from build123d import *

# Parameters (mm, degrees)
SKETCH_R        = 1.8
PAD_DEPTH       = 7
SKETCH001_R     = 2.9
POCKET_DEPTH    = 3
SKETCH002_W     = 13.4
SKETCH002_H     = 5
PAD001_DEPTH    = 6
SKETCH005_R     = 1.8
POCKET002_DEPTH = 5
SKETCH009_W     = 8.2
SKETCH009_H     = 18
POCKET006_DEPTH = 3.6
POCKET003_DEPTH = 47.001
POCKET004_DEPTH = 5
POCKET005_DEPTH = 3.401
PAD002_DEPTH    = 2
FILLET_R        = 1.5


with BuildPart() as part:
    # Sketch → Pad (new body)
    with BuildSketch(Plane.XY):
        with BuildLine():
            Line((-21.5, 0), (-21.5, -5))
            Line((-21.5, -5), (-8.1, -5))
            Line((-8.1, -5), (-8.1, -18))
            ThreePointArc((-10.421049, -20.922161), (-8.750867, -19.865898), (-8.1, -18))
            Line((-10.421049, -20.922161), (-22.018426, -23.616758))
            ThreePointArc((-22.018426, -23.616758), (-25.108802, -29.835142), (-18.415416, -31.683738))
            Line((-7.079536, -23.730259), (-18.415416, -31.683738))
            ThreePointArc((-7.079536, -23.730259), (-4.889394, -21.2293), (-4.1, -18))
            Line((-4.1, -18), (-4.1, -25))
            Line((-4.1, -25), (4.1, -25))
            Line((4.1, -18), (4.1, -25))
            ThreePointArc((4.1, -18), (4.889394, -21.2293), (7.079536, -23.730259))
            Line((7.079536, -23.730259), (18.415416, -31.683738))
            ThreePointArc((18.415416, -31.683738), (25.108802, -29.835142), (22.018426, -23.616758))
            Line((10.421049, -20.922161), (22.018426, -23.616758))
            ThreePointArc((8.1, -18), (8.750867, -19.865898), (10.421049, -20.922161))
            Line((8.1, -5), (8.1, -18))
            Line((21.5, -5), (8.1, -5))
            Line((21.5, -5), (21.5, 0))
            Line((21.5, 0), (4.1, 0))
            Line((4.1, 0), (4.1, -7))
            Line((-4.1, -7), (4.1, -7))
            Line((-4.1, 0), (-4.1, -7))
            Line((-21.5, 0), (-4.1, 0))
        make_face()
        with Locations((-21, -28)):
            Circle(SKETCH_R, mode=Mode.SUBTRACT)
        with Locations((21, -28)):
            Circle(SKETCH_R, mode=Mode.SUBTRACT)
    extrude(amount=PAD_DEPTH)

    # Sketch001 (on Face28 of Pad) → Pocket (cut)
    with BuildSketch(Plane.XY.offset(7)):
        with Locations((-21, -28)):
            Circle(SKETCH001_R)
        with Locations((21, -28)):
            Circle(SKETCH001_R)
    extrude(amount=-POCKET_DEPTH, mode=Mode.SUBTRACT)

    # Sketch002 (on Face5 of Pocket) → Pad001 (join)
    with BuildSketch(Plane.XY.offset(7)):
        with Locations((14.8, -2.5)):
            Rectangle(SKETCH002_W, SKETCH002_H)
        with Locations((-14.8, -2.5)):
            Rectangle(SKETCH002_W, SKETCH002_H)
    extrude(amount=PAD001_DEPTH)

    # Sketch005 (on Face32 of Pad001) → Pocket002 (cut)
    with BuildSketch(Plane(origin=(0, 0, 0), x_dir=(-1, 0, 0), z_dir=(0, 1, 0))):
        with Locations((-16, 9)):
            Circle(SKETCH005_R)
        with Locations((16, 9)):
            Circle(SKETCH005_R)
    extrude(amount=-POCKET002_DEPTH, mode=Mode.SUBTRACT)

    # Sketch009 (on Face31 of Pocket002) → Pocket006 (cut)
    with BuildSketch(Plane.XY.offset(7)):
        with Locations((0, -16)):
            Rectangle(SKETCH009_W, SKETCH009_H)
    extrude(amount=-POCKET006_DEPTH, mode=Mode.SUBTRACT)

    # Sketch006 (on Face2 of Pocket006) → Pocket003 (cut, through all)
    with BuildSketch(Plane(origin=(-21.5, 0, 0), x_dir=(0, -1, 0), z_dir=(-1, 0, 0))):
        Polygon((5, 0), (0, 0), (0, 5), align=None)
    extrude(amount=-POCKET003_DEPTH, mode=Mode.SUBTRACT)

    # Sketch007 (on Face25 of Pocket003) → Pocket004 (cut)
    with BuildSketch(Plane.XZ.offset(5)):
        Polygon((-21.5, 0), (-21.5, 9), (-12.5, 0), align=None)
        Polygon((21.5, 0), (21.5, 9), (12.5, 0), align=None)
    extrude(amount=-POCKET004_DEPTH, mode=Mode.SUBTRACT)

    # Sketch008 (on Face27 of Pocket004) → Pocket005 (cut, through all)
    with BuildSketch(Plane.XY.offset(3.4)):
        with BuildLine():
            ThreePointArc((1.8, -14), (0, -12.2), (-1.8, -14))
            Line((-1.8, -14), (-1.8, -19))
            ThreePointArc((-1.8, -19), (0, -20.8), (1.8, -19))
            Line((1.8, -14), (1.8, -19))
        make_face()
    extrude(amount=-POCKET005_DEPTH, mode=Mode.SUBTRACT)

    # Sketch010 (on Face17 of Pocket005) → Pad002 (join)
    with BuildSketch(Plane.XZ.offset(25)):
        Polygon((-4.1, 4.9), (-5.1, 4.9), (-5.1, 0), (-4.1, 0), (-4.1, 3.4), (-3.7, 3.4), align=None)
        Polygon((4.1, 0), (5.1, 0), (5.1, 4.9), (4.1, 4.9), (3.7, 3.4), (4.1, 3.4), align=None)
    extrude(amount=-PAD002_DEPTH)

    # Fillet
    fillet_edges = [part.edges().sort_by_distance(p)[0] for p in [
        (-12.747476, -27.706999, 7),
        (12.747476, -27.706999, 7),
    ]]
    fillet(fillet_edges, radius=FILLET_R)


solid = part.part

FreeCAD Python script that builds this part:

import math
import FreeCAD as App
import Part
import Sketcher

V = App.Vector


def edges_at(feature, points):
    """Names of the edges that pass closest to the given points."""
    edges = feature.Shape.Edges
    near = lambda p: min(range(len(edges)), key=lambda i: edges[i].distToShape(Part.Vertex(*p))[0])
    return sorted({f"Edge{near(p) + 1}" for p in points})

doc = App.newDocument("Part")
body = doc.addObject("PartDesign::Body", "Body")

# Sketch on XY plane
sketch1 = body.newObject("Sketcher::SketchObject", "Sketch")
sketch1.AttachmentSupport = (doc.getObject("XY_Plane"), [""])
sketch1.MapMode = "FlatFace"
sketch1.addGeometry(Part.LineSegment(V(-21.5, 0, 0), V(-21.5, -5, 0)), False)
sketch1.addGeometry(Part.LineSegment(V(-21.5, -5, 0), V(-8.1, -5, 0)), False)
sketch1.addGeometry(Part.LineSegment(V(-8.1, -5, 0), V(-8.1, -18, 0)), False)
sketch1.addGeometry(Part.ArcOfCircle(Part.Circle(V(-11.1, -18, 0), V(0, 0, 1), 3), math.radians(-77), math.radians(0)), False)
sketch1.addGeometry(Part.LineSegment(V(-10.4, -20.9, 0), V(-22, -23.6, 0)), False)
sketch1.addGeometry(Part.ArcOfCircle(Part.Circle(V(-21, -28, 0), V(0, 0, 1), 4.5), math.radians(103), math.radians(305)), False)
sketch1.addGeometry(Part.LineSegment(V(-18.4, -31.7, 0), V(-7.1, -23.7, 0)), False)
sketch1.addGeometry(Part.ArcOfCircle(Part.Circle(V(-11.1, -18, 0), V(0, 0, 1), 7), math.radians(-55), math.radians(0)), False)
sketch1.addGeometry(Part.LineSegment(V(-4.1, -18, 0), V(-4.1, -25, 0)), False)
sketch1.addGeometry(Part.LineSegment(V(-4.1, -25, 0), V(4.1, -25, 0)), False)
sketch1.addGeometry(Part.LineSegment(V(4.1, -25, 0), V(4.1, -18, 0)), False)
sketch1.addGeometry(Part.ArcOfCircle(Part.Circle(V(11.1, -18, 0), V(0, 0, 1), 7), math.radians(180), math.radians(235)), False)
sketch1.addGeometry(Part.LineSegment(V(7.1, -23.7, 0), V(18.4, -31.7, 0)), False)
sketch1.addGeometry(Part.ArcOfCircle(Part.Circle(V(21, -28, 0), V(0, 0, 1), 4.5), math.radians(-125), math.radians(77)), False)
sketch1.addGeometry(Part.LineSegment(V(22, -23.6, 0), V(10.4, -20.9, 0)), False)
sketch1.addGeometry(Part.ArcOfCircle(Part.Circle(V(11.1, -18, 0), V(0, 0, 1), 3), math.radians(180), math.radians(257)), False)
sketch1.addGeometry(Part.LineSegment(V(8.1, -18, 0), V(8.1, -5, 0)), False)
sketch1.addGeometry(Part.LineSegment(V(8.1, -5, 0), V(21.5, -5, 0)), False)
sketch1.addGeometry(Part.LineSegment(V(21.5, -5, 0), V(21.5, 0, 0)), False)
sketch1.addGeometry(Part.LineSegment(V(21.5, 0, 0), V(4.1, 0, 0)), False)
sketch1.addGeometry(Part.LineSegment(V(4.1, 0, 0), V(4.1, -7, 0)), False)
sketch1.addGeometry(Part.LineSegment(V(4.1, -7, 0), V(-4.1, -7, 0)), False)
sketch1.addGeometry(Part.LineSegment(V(-4.1, -7, 0), V(-4.1, 0, 0)), False)
sketch1.addGeometry(Part.LineSegment(V(-4.1, 0, 0), V(-21.5, 0, 0)), False)
sketch1.addGeometry(Part.Circle(V(-21, -28, 0), V(0, 0, 1), 1.8), False)
sketch1.addGeometry(Part.Circle(V(21, -28, 0), V(0, 0, 1), 1.8), False)
sketch1.addConstraint(Sketcher.Constraint("Coincident", 0, 2, 1, 1))
sketch1.addConstraint(Sketcher.Constraint("Coincident", 1, 2, 2, 1))
sketch1.addConstraint(Sketcher.Constraint("Tangent", 2, 2, 3, 2))
sketch1.addConstraint(Sketcher.Constraint("Tangent", 3, 1, 4, 1))
sketch1.addConstraint(Sketcher.Constraint("Tangent", 4, 2, 5, 1))
sketch1.addConstraint(Sketcher.Constraint("Tangent", 5, 2, 6, 1))
sketch1.addConstraint(Sketcher.Constraint("Tangent", 6, 2, 7, 1))
sketch1.addConstraint(Sketcher.Constraint("Tangent", 7, 2, 8, 1))
sketch1.addConstraint(Sketcher.Constraint("Coincident", 8, 2, 9, 1))
sketch1.addConstraint(Sketcher.Constraint("Coincident", 9, 2, 10, 1))
sketch1.addConstraint(Sketcher.Constraint("Tangent", 10, 2, 11, 1))
sketch1.addConstraint(Sketcher.Constraint("Tangent", 11, 2, 12, 1))
sketch1.addConstraint(Sketcher.Constraint("Tangent", 12, 2, 13, 1))
sketch1.addConstraint(Sketcher.Constraint("Tangent", 13, 2, 14, 1))
sketch1.addConstraint(Sketcher.Constraint("Tangent", 14, 2, 15, 2))
sketch1.addConstraint(Sketcher.Constraint("Tangent", 15, 1, 16, 1))
sketch1.addConstraint(Sketcher.Constraint("Coincident", 16, 2, 17, 1))
sketch1.addConstraint(Sketcher.Constraint("Coincident", 17, 2, 18, 1))
sketch1.addConstraint(Sketcher.Constraint("Coincident", 18, 2, 19, 1))
sketch1.addConstraint(Sketcher.Constraint("Coincident", 19, 2, 20, 1))
sketch1.addConstraint(Sketcher.Constraint("Coincident", 20, 2, 21, 1))
sketch1.addConstraint(Sketcher.Constraint("Coincident", 21, 2, 22, 1))
sketch1.addConstraint(Sketcher.Constraint("Coincident", 22, 2, 23, 1))
sketch1.addConstraint(Sketcher.Constraint("Coincident", 23, 2, 0, 1))
sketch1.addConstraint(Sketcher.Constraint("Vertical", 0))
sketch1.addConstraint(Sketcher.Constraint("Horizontal", 1))
sketch1.addConstraint(Sketcher.Constraint("Vertical", 2))
sketch1.addConstraint(Sketcher.Constraint("Vertical", 8))
sketch1.addConstraint(Sketcher.Constraint("Horizontal", 9))
sketch1.addConstraint(Sketcher.Constraint("Vertical", 10))
sketch1.addConstraint(Sketcher.Constraint("Vertical", 16))
sketch1.addConstraint(Sketcher.Constraint("Horizontal", 17))
sketch1.addConstraint(Sketcher.Constraint("Vertical", 18))
sketch1.addConstraint(Sketcher.Constraint("Horizontal", 19))
sketch1.addConstraint(Sketcher.Constraint("Vertical", 20))
sketch1.addConstraint(Sketcher.Constraint("Horizontal", 21))
sketch1.addConstraint(Sketcher.Constraint("Vertical", 22))
sketch1.addConstraint(Sketcher.Constraint("Horizontal", 23))
sketch1.addConstraint(Sketcher.Constraint("Coincident", 7, 3, 3, 3))
sketch1.addConstraint(Sketcher.Constraint("Coincident", 15, 3, 11, 3))
sketch1.addConstraint(Sketcher.Constraint("Coincident", 24, 3, 5, 3))
sketch1.addConstraint(Sketcher.Constraint("Coincident", 25, 3, 13, 3))
sketch1.addConstraint(Sketcher.Constraint("Equal", 7, 11))
sketch1.addConstraint(Sketcher.Constraint("Equal", 5, 13))
sketch1.addConstraint(Sketcher.Constraint("Equal", 3, 15))
sketch1.addConstraint(Sketcher.Constraint("Equal", 24, 25))
sketch1.addConstraint(Sketcher.Constraint("Symmetric", 19, 2, 22, 2, -1, 1))
sketch1.addConstraint(Sketcher.Constraint("Symmetric", 3, 3, 11, 3, -2))
sketch1.addConstraint(Sketcher.Constraint("Symmetric", 5, 3, 13, 3, -2))
sketch1.addConstraint(Sketcher.Constraint("Symmetric", 0, 2, 17, 2, -2))
sketch1.addConstraint(Sketcher.Constraint("PointOnObject", 18, 2, -1))
sketch1.addConstraint(Sketcher.Constraint("Vertical", 10, 2, 19, 2))
sketch1.addConstraint(Sketcher.Constraint("Equal", 10, 20))
sketch1.addConstraint(Sketcher.Constraint("Radius", 3, 2.999999))
sketch1.addConstraint(Sketcher.Constraint("Diameter", 24, 3.6))
sketch1.addConstraint(Sketcher.Constraint("Radius", 5, 4.5))
sketch1.addConstraint(Sketcher.Constraint("DistanceY", 0, 2, 0, 1, 5.0))
sketch1.addConstraint(Sketcher.Constraint("DistanceY", 2, 2, 2, 1, 13.0))
sketch1.addConstraint(Sketcher.Constraint("DistanceY", 8, 2, 8, 1, 7.0))
sketch1.addConstraint(Sketcher.Constraint("DistanceX", 1, 1, 1, 2, 13.4))
sketch1.addConstraint(Sketcher.Constraint("DistanceX", 9, 1, 9, 2, 8.2))
sketch1.addConstraint(Sketcher.Constraint("DistanceX", 19, 2, 19, 1, 17.4))
sketch1.addConstraint(Sketcher.Constraint("DistanceX", 5, 3, -1, 1, 21.0))
sketch1.addConstraint(Sketcher.Constraint("DistanceY", 5, 3, -1, 1, 28.0))
pad1 = body.newObject("PartDesign::Pad", "Pad")
pad1.Profile = sketch1
pad1.Length = 7

# Sketch on XY plane
sketch2 = body.newObject("Sketcher::SketchObject", "Sketch001")
sketch2.AttachmentSupport = (doc.getObject("XY_Plane"), [""])
sketch2.MapMode = "FlatFace"
sketch2.AttachmentOffset = App.Placement(V(0, 0, 7), App.Rotation())
sketch2.addGeometry(Part.Circle(V(-21, -28, 0), V(0, 0, 1), 2.9), False)
sketch2.addGeometry(Part.Circle(V(21, -28, 0), V(0, 0, 1), 2.9), False)
sketch2.addConstraint(Sketcher.Constraint("Equal", 0, 1))
sketch2.addConstraint(Sketcher.Constraint("Symmetric", 0, 3, 1, 3, -2))
sketch2.addConstraint(Sketcher.Constraint("Diameter", 0, 5.8))
sketch2.addConstraint(Sketcher.Constraint("DistanceX", 0, 3, -1, 1, 21.0))
sketch2.addConstraint(Sketcher.Constraint("DistanceY", 0, 3, -1, 1, 28.0))
pocket1 = body.newObject("PartDesign::Pocket", "Pocket")
pocket1.Profile = sketch2
pocket1.Length = 3

# Sketch on XY plane
sketch3 = body.newObject("Sketcher::SketchObject", "Sketch002")
sketch3.AttachmentSupport = (doc.getObject("XY_Plane"), [""])
sketch3.MapMode = "FlatFace"
sketch3.AttachmentOffset = App.Placement(V(0, 0, 7), App.Rotation())
sketch3.addGeometry(Part.LineSegment(V(8, 0, 0), V(8, -5, 0)), False)
sketch3.addGeometry(Part.LineSegment(V(8, -5, 0), V(22, -5, 0)), False)
sketch3.addGeometry(Part.LineSegment(V(22, -5, 0), V(22, 0, 0)), False)
sketch3.addGeometry(Part.LineSegment(V(22, 0, 0), V(8, 0, 0)), False)
sketch3.addGeometry(Part.LineSegment(V(-22, 0, 0), V(-22, -5, 0)), False)
sketch3.addGeometry(Part.LineSegment(V(-22, -5, 0), V(-8, -5, 0)), False)
sketch3.addGeometry(Part.LineSegment(V(-8, -5, 0), V(-8, 0, 0)), False)
sketch3.addGeometry(Part.LineSegment(V(-8, 0, 0), V(-22, 0, 0)), False)
sketch3.addConstraint(Sketcher.Constraint("Coincident", 0, 2, 1, 1))
sketch3.addConstraint(Sketcher.Constraint("Coincident", 1, 2, 2, 1))
sketch3.addConstraint(Sketcher.Constraint("Coincident", 2, 2, 3, 1))
sketch3.addConstraint(Sketcher.Constraint("Coincident", 3, 2, 0, 1))
sketch3.addConstraint(Sketcher.Constraint("Coincident", 4, 2, 5, 1))
sketch3.addConstraint(Sketcher.Constraint("Coincident", 5, 2, 6, 1))
sketch3.addConstraint(Sketcher.Constraint("Coincident", 6, 2, 7, 1))
sketch3.addConstraint(Sketcher.Constraint("Coincident", 7, 2, 4, 1))
sketch3.addConstraint(Sketcher.Constraint("Vertical", 0))
sketch3.addConstraint(Sketcher.Constraint("Horizontal", 1))
sketch3.addConstraint(Sketcher.Constraint("Vertical", 2))
sketch3.addConstraint(Sketcher.Constraint("Horizontal", 3))
sketch3.addConstraint(Sketcher.Constraint("Vertical", 4))
sketch3.addConstraint(Sketcher.Constraint("Horizontal", 5))
sketch3.addConstraint(Sketcher.Constraint("Vertical", 6))
sketch3.addConstraint(Sketcher.Constraint("Horizontal", 7))
sketch3.addConstraint(Sketcher.Constraint("Symmetric", 3, 2, 6, 2, -1, 1))
sketch3.addConstraint(Sketcher.Constraint("Symmetric", 1, 2, 4, 2, -2))
sketch3.addConstraint(Sketcher.Constraint("PointOnObject", 2, 2, -1))
sketch3.addConstraint(Sketcher.Constraint("DistanceY", 0, 2, 0, 1, 5.0))
sketch3.addConstraint(Sketcher.Constraint("DistanceX", 1, 1, 1, 2, 13.4))
sketch3.addConstraint(Sketcher.Constraint("DistanceX", 4, 2, 1, 2, 43.0))
pad2 = body.newObject("PartDesign::Pad", "Pad001")
pad2.Profile = sketch3
pad2.Length = 6

# Sketch on XZ plane
sketch4 = body.newObject("Sketcher::SketchObject", "Sketch003")
sketch4.AttachmentSupport = (doc.getObject("XZ_Plane"), [""])
sketch4.MapMode = "FlatFace"
sketch4.addGeometry(Part.Circle(V(16, 9, 0), V(0, 0, 1), 1.8), False)
sketch4.addGeometry(Part.Circle(V(-16, 9, 0), V(0, 0, 1), 1.8), False)
sketch4.addConstraint(Sketcher.Constraint("Equal", 0, 1))
sketch4.addConstraint(Sketcher.Constraint("Symmetric", 0, 3, 1, 3, -2))
sketch4.addConstraint(Sketcher.Constraint("Diameter", 0, 3.6))
sketch4.addConstraint(Sketcher.Constraint("DistanceX", -1, 1, 0, 3, 16.0))
sketch4.addConstraint(Sketcher.Constraint("DistanceY", -1, 1, 0, 3, 9.0))
pocket2 = body.newObject("PartDesign::Pocket", "Pocket001")
pocket2.Profile = sketch4
pocket2.Length = 5
pocket2.Reversed = True

# Sketch on XY plane
sketch5 = body.newObject("Sketcher::SketchObject", "Sketch004")
sketch5.AttachmentSupport = (doc.getObject("XY_Plane"), [""])
sketch5.MapMode = "FlatFace"
sketch5.AttachmentOffset = App.Placement(V(0, 0, 7), App.Rotation())
sketch5.addGeometry(Part.LineSegment(V(-4, -7, 0), V(-4, -25, 0)), False)
sketch5.addGeometry(Part.LineSegment(V(-4, -25, 0), V(4, -25, 0)), False)
sketch5.addGeometry(Part.LineSegment(V(4, -25, 0), V(4, -7, 0)), False)
sketch5.addGeometry(Part.LineSegment(V(4, -7, 0), V(-4, -7, 0)), False)
sketch5.addConstraint(Sketcher.Constraint("Coincident", 0, 2, 1, 1))
sketch5.addConstraint(Sketcher.Constraint("Coincident", 1, 2, 2, 1))
sketch5.addConstraint(Sketcher.Constraint("Coincident", 2, 2, 3, 1))
sketch5.addConstraint(Sketcher.Constraint("Coincident", 3, 2, 0, 1))
sketch5.addConstraint(Sketcher.Constraint("Vertical", 0))
sketch5.addConstraint(Sketcher.Constraint("Horizontal", 1))
sketch5.addConstraint(Sketcher.Constraint("Vertical", 2))
sketch5.addConstraint(Sketcher.Constraint("Horizontal", 3))
sketch5.addConstraint(Sketcher.Constraint("DistanceY", 0, 2, 0, 1, 18.0))
sketch5.addConstraint(Sketcher.Constraint("DistanceX", 1, 1, 1, 2, 8.2))
sketch5.addConstraint(Sketcher.Constraint("DistanceY", 0, 2, -1, 1, 25.0))
sketch5.addConstraint(Sketcher.Constraint("DistanceX", 0, 2, -1, 1, 4.1))
pocket3 = body.newObject("PartDesign::Pocket", "Pocket002")
pocket3.Profile = sketch5
pocket3.Length = 3.6

# Sketch on YZ plane
sketch6 = body.newObject("Sketcher::SketchObject", "Sketch005")
sketch6.AttachmentSupport = (doc.getObject("YZ_Plane"), [""])
sketch6.MapMode = "FlatFace"
sketch6.AttachmentOffset = App.Placement(V(0, 0, -21.5), App.Rotation())
sketch6.addGeometry(Part.LineSegment(V(0, 0, 0), V(-5, 0, 0)), False)
sketch6.addGeometry(Part.LineSegment(V(-5, 0, 0), V(0, 5, 0)), False)
sketch6.addGeometry(Part.LineSegment(V(0, 5, 0), V(0, 0, 0)), False)
sketch6.addConstraint(Sketcher.Constraint("Coincident", 0, 2, 1, 1))
sketch6.addConstraint(Sketcher.Constraint("Coincident", 1, 2, 2, 1))
sketch6.addConstraint(Sketcher.Constraint("Coincident", 2, 2, 0, 1))
sketch6.addConstraint(Sketcher.Constraint("Horizontal", 0))
sketch6.addConstraint(Sketcher.Constraint("Vertical", 2))
sketch6.addConstraint(Sketcher.Constraint("Coincident", 2, 2, -1, 1))
sketch6.addConstraint(Sketcher.Constraint("Equal", 0, 2))
sketch6.addConstraint(Sketcher.Constraint("DistanceX", 0, 2, 0, 1, 5.0))
pocket4 = body.newObject("PartDesign::Pocket", "Pocket003")
pocket4.Profile = sketch6
pocket4.Type = "ThroughAll"
pocket4.Reversed = True

# Sketch on XZ plane
sketch7 = body.newObject("Sketcher::SketchObject", "Sketch006")
sketch7.AttachmentSupport = (doc.getObject("XZ_Plane"), [""])
sketch7.MapMode = "FlatFace"
sketch7.AttachmentOffset = App.Placement(V(0, 0, 5), App.Rotation())
sketch7.addGeometry(Part.LineSegment(V(-22, 9, 0), V(-22, 0, 0)), False)
sketch7.addGeometry(Part.LineSegment(V(-22, 0, 0), V(-12, 0, 0)), False)
sketch7.addGeometry(Part.LineSegment(V(-12, 0, 0), V(-22, 9, 0)), False)
sketch7.addGeometry(Part.LineSegment(V(22, 0, 0), V(22, 9, 0)), False)
sketch7.addGeometry(Part.LineSegment(V(22, 9, 0), V(12, 0, 0)), False)
sketch7.addGeometry(Part.LineSegment(V(12, 0, 0), V(22, 0, 0)), False)
sketch7.addConstraint(Sketcher.Constraint("Coincident", 0, 2, 1, 1))
sketch7.addConstraint(Sketcher.Constraint("Coincident", 1, 2, 2, 1))
sketch7.addConstraint(Sketcher.Constraint("Coincident", 2, 2, 0, 1))
sketch7.addConstraint(Sketcher.Constraint("Coincident", 3, 2, 4, 1))
sketch7.addConstraint(Sketcher.Constraint("Coincident", 4, 2, 5, 1))
sketch7.addConstraint(Sketcher.Constraint("Coincident", 5, 2, 3, 1))
sketch7.addConstraint(Sketcher.Constraint("Vertical", 0))
sketch7.addConstraint(Sketcher.Constraint("Horizontal", 1))
sketch7.addConstraint(Sketcher.Constraint("Vertical", 3))
sketch7.addConstraint(Sketcher.Constraint("Horizontal", 5))
sketch7.addConstraint(Sketcher.Constraint("Symmetric", 1, 2, 4, 2, -1, 1))
sketch7.addConstraint(Sketcher.Constraint("Symmetric", 2, 2, 3, 2, -2))
sketch7.addConstraint(Sketcher.Constraint("PointOnObject", 0, 2, -1))
sketch7.addConstraint(Sketcher.Constraint("Perpendicular", 2, 4))
sketch7.addConstraint(Sketcher.Constraint("DistanceX", 1, 1, 1, 2, 9.0))
sketch7.addConstraint(Sketcher.Constraint("DistanceX", 1, 2, 3, 2, 34.0))
pocket5 = body.newObject("PartDesign::Pocket", "Pocket004")
pocket5.Profile = sketch7
pocket5.Length = 5

# Sketch on XY plane
sketch8 = body.newObject("Sketcher::SketchObject", "Sketch007")
sketch8.AttachmentSupport = (doc.getObject("XY_Plane"), [""])
sketch8.MapMode = "FlatFace"
sketch8.AttachmentOffset = App.Placement(V(0, 0, 3.4), App.Rotation())
sketch8.addGeometry(Part.ArcOfCircle(Part.Circle(V(0, -14, 0), V(0, 0, 1), 1.8), math.radians(0), math.radians(180)), False)
sketch8.addGeometry(Part.LineSegment(V(-1.8, -14, 0), V(-1.8, -19, 0)), False)
sketch8.addGeometry(Part.ArcOfCircle(Part.Circle(V(0, -19, 0), V(0, 0, 1), 1.8), math.radians(180), math.radians(360)), False)
sketch8.addGeometry(Part.LineSegment(V(1.8, -19, 0), V(1.8, -14, 0)), False)
sketch8.addConstraint(Sketcher.Constraint("Tangent", 0, 2, 1, 1))
sketch8.addConstraint(Sketcher.Constraint("Tangent", 1, 2, 2, 1))
sketch8.addConstraint(Sketcher.Constraint("Tangent", 2, 2, 3, 1))
sketch8.addConstraint(Sketcher.Constraint("Tangent", 3, 2, 0, 1))
sketch8.addConstraint(Sketcher.Constraint("Vertical", 1))
sketch8.addConstraint(Sketcher.Constraint("Vertical", 3))
sketch8.addConstraint(Sketcher.Constraint("PointOnObject", 0, 3, -2))
sketch8.addConstraint(Sketcher.Constraint("Radius", 0, 1.8))
sketch8.addConstraint(Sketcher.Constraint("DistanceY", 1, 2, 1, 1, 5.0))
sketch8.addConstraint(Sketcher.Constraint("DistanceY", 0, 3, -1, 1, 14.0))
pocket6 = body.newObject("PartDesign::Pocket", "Pocket005")
pocket6.Profile = sketch8
pocket6.Type = "ThroughAll"

# Sketch on XZ plane
sketch9 = body.newObject("Sketcher::SketchObject", "Sketch008")
sketch9.AttachmentSupport = (doc.getObject("XZ_Plane"), [""])
sketch9.MapMode = "FlatFace"
sketch9.AttachmentOffset = App.Placement(V(0, 0, 25), App.Rotation())
sketch9.addGeometry(Part.LineSegment(V(-4.1, 4.9, 0), V(-5.1, 4.9, 0)), False)
sketch9.addGeometry(Part.LineSegment(V(-5.1, 4.9, 0), V(-5.1, 0, 0)), False)
sketch9.addGeometry(Part.LineSegment(V(-5.1, 0, 0), V(-4.1, 0, 0)), False)
sketch9.addGeometry(Part.LineSegment(V(-4.1, 0, 0), V(-4.1, 3.4, 0)), False)
sketch9.addGeometry(Part.LineSegment(V(-4.1, 3.4, 0), V(-3.7, 3.4, 0)), False)
sketch9.addGeometry(Part.LineSegment(V(-3.7, 3.4, 0), V(-4.1, 4.9, 0)), False)
sketch9.addGeometry(Part.LineSegment(V(4.1, 0, 0), V(5.1, 0, 0)), False)
sketch9.addGeometry(Part.LineSegment(V(5.1, 0, 0), V(5.1, 4.9, 0)), False)
sketch9.addGeometry(Part.LineSegment(V(5.1, 4.9, 0), V(4.1, 4.9, 0)), False)
sketch9.addGeometry(Part.LineSegment(V(4.1, 4.9, 0), V(3.7, 3.4, 0)), False)
sketch9.addGeometry(Part.LineSegment(V(3.7, 3.4, 0), V(4.1, 3.4, 0)), False)
sketch9.addGeometry(Part.LineSegment(V(4.1, 3.4, 0), V(4.1, 0, 0)), False)
sketch9.addConstraint(Sketcher.Constraint("Coincident", 0, 2, 1, 1))
sketch9.addConstraint(Sketcher.Constraint("Coincident", 1, 2, 2, 1))
sketch9.addConstraint(Sketcher.Constraint("Coincident", 2, 2, 3, 1))
sketch9.addConstraint(Sketcher.Constraint("Coincident", 3, 2, 4, 1))
sketch9.addConstraint(Sketcher.Constraint("Coincident", 4, 2, 5, 1))
sketch9.addConstraint(Sketcher.Constraint("Coincident", 5, 2, 0, 1))
sketch9.addConstraint(Sketcher.Constraint("Coincident", 6, 2, 7, 1))
sketch9.addConstraint(Sketcher.Constraint("Coincident", 7, 2, 8, 1))
sketch9.addConstraint(Sketcher.Constraint("Coincident", 8, 2, 9, 1))
sketch9.addConstraint(Sketcher.Constraint("Coincident", 9, 2, 10, 1))
sketch9.addConstraint(Sketcher.Constraint("Coincident", 10, 2, 11, 1))
sketch9.addConstraint(Sketcher.Constraint("Coincident", 11, 2, 6, 1))
sketch9.addConstraint(Sketcher.Constraint("Horizontal", 0))
sketch9.addConstraint(Sketcher.Constraint("Vertical", 1))
sketch9.addConstraint(Sketcher.Constraint("Horizontal", 2))
sketch9.addConstraint(Sketcher.Constraint("Vertical", 3))
sketch9.addConstraint(Sketcher.Constraint("Horizontal", 4))
sketch9.addConstraint(Sketcher.Constraint("Horizontal", 6))
sketch9.addConstraint(Sketcher.Constraint("Vertical", 7))
sketch9.addConstraint(Sketcher.Constraint("Horizontal", 8))
sketch9.addConstraint(Sketcher.Constraint("Horizontal", 10))
sketch9.addConstraint(Sketcher.Constraint("Vertical", 11))
sketch9.addConstraint(Sketcher.Constraint("Symmetric", 1, 2, 6, 2, -1, 1))
sketch9.addConstraint(Sketcher.Constraint("Symmetric", 5, 2, 8, 2, -2))
sketch9.addConstraint(Sketcher.Constraint("Symmetric", 4, 2, 9, 2, -2))
sketch9.addConstraint(Sketcher.Constraint("Symmetric", 2, 2, 11, 2, -2))
sketch9.addConstraint(Sketcher.Constraint("Vertical", 3, 2, 5, 2))
sketch9.addConstraint(Sketcher.Constraint("DistanceX", 0, 2, 0, 1, 1.0))
sketch9.addConstraint(Sketcher.Constraint("DistanceX", 4, 1, 4, 2, 0.4))
sketch9.addConstraint(Sketcher.Constraint("DistanceY", 1, 2, 1, 1, 4.9))
sketch9.addConstraint(Sketcher.Constraint("DistanceY", 3, 1, 3, 2, 3.4))
sketch9.addConstraint(Sketcher.Constraint("DistanceX", 0, 2, -1, 1, 5.1))
pad3 = body.newObject("PartDesign::Pad", "Pad002")
pad3.Profile = sketch9
pad3.Length = 2
pad3.Reversed = True
doc.recompute()

fillet = body.newObject("PartDesign::Fillet", "Fillet")
fillet.Base = (pad3, edges_at(pad3, [(-12.747, -27.707, 7), (12.747, -27.707, 7)]))
fillet.Radius = 1.5

doc.recompute()
